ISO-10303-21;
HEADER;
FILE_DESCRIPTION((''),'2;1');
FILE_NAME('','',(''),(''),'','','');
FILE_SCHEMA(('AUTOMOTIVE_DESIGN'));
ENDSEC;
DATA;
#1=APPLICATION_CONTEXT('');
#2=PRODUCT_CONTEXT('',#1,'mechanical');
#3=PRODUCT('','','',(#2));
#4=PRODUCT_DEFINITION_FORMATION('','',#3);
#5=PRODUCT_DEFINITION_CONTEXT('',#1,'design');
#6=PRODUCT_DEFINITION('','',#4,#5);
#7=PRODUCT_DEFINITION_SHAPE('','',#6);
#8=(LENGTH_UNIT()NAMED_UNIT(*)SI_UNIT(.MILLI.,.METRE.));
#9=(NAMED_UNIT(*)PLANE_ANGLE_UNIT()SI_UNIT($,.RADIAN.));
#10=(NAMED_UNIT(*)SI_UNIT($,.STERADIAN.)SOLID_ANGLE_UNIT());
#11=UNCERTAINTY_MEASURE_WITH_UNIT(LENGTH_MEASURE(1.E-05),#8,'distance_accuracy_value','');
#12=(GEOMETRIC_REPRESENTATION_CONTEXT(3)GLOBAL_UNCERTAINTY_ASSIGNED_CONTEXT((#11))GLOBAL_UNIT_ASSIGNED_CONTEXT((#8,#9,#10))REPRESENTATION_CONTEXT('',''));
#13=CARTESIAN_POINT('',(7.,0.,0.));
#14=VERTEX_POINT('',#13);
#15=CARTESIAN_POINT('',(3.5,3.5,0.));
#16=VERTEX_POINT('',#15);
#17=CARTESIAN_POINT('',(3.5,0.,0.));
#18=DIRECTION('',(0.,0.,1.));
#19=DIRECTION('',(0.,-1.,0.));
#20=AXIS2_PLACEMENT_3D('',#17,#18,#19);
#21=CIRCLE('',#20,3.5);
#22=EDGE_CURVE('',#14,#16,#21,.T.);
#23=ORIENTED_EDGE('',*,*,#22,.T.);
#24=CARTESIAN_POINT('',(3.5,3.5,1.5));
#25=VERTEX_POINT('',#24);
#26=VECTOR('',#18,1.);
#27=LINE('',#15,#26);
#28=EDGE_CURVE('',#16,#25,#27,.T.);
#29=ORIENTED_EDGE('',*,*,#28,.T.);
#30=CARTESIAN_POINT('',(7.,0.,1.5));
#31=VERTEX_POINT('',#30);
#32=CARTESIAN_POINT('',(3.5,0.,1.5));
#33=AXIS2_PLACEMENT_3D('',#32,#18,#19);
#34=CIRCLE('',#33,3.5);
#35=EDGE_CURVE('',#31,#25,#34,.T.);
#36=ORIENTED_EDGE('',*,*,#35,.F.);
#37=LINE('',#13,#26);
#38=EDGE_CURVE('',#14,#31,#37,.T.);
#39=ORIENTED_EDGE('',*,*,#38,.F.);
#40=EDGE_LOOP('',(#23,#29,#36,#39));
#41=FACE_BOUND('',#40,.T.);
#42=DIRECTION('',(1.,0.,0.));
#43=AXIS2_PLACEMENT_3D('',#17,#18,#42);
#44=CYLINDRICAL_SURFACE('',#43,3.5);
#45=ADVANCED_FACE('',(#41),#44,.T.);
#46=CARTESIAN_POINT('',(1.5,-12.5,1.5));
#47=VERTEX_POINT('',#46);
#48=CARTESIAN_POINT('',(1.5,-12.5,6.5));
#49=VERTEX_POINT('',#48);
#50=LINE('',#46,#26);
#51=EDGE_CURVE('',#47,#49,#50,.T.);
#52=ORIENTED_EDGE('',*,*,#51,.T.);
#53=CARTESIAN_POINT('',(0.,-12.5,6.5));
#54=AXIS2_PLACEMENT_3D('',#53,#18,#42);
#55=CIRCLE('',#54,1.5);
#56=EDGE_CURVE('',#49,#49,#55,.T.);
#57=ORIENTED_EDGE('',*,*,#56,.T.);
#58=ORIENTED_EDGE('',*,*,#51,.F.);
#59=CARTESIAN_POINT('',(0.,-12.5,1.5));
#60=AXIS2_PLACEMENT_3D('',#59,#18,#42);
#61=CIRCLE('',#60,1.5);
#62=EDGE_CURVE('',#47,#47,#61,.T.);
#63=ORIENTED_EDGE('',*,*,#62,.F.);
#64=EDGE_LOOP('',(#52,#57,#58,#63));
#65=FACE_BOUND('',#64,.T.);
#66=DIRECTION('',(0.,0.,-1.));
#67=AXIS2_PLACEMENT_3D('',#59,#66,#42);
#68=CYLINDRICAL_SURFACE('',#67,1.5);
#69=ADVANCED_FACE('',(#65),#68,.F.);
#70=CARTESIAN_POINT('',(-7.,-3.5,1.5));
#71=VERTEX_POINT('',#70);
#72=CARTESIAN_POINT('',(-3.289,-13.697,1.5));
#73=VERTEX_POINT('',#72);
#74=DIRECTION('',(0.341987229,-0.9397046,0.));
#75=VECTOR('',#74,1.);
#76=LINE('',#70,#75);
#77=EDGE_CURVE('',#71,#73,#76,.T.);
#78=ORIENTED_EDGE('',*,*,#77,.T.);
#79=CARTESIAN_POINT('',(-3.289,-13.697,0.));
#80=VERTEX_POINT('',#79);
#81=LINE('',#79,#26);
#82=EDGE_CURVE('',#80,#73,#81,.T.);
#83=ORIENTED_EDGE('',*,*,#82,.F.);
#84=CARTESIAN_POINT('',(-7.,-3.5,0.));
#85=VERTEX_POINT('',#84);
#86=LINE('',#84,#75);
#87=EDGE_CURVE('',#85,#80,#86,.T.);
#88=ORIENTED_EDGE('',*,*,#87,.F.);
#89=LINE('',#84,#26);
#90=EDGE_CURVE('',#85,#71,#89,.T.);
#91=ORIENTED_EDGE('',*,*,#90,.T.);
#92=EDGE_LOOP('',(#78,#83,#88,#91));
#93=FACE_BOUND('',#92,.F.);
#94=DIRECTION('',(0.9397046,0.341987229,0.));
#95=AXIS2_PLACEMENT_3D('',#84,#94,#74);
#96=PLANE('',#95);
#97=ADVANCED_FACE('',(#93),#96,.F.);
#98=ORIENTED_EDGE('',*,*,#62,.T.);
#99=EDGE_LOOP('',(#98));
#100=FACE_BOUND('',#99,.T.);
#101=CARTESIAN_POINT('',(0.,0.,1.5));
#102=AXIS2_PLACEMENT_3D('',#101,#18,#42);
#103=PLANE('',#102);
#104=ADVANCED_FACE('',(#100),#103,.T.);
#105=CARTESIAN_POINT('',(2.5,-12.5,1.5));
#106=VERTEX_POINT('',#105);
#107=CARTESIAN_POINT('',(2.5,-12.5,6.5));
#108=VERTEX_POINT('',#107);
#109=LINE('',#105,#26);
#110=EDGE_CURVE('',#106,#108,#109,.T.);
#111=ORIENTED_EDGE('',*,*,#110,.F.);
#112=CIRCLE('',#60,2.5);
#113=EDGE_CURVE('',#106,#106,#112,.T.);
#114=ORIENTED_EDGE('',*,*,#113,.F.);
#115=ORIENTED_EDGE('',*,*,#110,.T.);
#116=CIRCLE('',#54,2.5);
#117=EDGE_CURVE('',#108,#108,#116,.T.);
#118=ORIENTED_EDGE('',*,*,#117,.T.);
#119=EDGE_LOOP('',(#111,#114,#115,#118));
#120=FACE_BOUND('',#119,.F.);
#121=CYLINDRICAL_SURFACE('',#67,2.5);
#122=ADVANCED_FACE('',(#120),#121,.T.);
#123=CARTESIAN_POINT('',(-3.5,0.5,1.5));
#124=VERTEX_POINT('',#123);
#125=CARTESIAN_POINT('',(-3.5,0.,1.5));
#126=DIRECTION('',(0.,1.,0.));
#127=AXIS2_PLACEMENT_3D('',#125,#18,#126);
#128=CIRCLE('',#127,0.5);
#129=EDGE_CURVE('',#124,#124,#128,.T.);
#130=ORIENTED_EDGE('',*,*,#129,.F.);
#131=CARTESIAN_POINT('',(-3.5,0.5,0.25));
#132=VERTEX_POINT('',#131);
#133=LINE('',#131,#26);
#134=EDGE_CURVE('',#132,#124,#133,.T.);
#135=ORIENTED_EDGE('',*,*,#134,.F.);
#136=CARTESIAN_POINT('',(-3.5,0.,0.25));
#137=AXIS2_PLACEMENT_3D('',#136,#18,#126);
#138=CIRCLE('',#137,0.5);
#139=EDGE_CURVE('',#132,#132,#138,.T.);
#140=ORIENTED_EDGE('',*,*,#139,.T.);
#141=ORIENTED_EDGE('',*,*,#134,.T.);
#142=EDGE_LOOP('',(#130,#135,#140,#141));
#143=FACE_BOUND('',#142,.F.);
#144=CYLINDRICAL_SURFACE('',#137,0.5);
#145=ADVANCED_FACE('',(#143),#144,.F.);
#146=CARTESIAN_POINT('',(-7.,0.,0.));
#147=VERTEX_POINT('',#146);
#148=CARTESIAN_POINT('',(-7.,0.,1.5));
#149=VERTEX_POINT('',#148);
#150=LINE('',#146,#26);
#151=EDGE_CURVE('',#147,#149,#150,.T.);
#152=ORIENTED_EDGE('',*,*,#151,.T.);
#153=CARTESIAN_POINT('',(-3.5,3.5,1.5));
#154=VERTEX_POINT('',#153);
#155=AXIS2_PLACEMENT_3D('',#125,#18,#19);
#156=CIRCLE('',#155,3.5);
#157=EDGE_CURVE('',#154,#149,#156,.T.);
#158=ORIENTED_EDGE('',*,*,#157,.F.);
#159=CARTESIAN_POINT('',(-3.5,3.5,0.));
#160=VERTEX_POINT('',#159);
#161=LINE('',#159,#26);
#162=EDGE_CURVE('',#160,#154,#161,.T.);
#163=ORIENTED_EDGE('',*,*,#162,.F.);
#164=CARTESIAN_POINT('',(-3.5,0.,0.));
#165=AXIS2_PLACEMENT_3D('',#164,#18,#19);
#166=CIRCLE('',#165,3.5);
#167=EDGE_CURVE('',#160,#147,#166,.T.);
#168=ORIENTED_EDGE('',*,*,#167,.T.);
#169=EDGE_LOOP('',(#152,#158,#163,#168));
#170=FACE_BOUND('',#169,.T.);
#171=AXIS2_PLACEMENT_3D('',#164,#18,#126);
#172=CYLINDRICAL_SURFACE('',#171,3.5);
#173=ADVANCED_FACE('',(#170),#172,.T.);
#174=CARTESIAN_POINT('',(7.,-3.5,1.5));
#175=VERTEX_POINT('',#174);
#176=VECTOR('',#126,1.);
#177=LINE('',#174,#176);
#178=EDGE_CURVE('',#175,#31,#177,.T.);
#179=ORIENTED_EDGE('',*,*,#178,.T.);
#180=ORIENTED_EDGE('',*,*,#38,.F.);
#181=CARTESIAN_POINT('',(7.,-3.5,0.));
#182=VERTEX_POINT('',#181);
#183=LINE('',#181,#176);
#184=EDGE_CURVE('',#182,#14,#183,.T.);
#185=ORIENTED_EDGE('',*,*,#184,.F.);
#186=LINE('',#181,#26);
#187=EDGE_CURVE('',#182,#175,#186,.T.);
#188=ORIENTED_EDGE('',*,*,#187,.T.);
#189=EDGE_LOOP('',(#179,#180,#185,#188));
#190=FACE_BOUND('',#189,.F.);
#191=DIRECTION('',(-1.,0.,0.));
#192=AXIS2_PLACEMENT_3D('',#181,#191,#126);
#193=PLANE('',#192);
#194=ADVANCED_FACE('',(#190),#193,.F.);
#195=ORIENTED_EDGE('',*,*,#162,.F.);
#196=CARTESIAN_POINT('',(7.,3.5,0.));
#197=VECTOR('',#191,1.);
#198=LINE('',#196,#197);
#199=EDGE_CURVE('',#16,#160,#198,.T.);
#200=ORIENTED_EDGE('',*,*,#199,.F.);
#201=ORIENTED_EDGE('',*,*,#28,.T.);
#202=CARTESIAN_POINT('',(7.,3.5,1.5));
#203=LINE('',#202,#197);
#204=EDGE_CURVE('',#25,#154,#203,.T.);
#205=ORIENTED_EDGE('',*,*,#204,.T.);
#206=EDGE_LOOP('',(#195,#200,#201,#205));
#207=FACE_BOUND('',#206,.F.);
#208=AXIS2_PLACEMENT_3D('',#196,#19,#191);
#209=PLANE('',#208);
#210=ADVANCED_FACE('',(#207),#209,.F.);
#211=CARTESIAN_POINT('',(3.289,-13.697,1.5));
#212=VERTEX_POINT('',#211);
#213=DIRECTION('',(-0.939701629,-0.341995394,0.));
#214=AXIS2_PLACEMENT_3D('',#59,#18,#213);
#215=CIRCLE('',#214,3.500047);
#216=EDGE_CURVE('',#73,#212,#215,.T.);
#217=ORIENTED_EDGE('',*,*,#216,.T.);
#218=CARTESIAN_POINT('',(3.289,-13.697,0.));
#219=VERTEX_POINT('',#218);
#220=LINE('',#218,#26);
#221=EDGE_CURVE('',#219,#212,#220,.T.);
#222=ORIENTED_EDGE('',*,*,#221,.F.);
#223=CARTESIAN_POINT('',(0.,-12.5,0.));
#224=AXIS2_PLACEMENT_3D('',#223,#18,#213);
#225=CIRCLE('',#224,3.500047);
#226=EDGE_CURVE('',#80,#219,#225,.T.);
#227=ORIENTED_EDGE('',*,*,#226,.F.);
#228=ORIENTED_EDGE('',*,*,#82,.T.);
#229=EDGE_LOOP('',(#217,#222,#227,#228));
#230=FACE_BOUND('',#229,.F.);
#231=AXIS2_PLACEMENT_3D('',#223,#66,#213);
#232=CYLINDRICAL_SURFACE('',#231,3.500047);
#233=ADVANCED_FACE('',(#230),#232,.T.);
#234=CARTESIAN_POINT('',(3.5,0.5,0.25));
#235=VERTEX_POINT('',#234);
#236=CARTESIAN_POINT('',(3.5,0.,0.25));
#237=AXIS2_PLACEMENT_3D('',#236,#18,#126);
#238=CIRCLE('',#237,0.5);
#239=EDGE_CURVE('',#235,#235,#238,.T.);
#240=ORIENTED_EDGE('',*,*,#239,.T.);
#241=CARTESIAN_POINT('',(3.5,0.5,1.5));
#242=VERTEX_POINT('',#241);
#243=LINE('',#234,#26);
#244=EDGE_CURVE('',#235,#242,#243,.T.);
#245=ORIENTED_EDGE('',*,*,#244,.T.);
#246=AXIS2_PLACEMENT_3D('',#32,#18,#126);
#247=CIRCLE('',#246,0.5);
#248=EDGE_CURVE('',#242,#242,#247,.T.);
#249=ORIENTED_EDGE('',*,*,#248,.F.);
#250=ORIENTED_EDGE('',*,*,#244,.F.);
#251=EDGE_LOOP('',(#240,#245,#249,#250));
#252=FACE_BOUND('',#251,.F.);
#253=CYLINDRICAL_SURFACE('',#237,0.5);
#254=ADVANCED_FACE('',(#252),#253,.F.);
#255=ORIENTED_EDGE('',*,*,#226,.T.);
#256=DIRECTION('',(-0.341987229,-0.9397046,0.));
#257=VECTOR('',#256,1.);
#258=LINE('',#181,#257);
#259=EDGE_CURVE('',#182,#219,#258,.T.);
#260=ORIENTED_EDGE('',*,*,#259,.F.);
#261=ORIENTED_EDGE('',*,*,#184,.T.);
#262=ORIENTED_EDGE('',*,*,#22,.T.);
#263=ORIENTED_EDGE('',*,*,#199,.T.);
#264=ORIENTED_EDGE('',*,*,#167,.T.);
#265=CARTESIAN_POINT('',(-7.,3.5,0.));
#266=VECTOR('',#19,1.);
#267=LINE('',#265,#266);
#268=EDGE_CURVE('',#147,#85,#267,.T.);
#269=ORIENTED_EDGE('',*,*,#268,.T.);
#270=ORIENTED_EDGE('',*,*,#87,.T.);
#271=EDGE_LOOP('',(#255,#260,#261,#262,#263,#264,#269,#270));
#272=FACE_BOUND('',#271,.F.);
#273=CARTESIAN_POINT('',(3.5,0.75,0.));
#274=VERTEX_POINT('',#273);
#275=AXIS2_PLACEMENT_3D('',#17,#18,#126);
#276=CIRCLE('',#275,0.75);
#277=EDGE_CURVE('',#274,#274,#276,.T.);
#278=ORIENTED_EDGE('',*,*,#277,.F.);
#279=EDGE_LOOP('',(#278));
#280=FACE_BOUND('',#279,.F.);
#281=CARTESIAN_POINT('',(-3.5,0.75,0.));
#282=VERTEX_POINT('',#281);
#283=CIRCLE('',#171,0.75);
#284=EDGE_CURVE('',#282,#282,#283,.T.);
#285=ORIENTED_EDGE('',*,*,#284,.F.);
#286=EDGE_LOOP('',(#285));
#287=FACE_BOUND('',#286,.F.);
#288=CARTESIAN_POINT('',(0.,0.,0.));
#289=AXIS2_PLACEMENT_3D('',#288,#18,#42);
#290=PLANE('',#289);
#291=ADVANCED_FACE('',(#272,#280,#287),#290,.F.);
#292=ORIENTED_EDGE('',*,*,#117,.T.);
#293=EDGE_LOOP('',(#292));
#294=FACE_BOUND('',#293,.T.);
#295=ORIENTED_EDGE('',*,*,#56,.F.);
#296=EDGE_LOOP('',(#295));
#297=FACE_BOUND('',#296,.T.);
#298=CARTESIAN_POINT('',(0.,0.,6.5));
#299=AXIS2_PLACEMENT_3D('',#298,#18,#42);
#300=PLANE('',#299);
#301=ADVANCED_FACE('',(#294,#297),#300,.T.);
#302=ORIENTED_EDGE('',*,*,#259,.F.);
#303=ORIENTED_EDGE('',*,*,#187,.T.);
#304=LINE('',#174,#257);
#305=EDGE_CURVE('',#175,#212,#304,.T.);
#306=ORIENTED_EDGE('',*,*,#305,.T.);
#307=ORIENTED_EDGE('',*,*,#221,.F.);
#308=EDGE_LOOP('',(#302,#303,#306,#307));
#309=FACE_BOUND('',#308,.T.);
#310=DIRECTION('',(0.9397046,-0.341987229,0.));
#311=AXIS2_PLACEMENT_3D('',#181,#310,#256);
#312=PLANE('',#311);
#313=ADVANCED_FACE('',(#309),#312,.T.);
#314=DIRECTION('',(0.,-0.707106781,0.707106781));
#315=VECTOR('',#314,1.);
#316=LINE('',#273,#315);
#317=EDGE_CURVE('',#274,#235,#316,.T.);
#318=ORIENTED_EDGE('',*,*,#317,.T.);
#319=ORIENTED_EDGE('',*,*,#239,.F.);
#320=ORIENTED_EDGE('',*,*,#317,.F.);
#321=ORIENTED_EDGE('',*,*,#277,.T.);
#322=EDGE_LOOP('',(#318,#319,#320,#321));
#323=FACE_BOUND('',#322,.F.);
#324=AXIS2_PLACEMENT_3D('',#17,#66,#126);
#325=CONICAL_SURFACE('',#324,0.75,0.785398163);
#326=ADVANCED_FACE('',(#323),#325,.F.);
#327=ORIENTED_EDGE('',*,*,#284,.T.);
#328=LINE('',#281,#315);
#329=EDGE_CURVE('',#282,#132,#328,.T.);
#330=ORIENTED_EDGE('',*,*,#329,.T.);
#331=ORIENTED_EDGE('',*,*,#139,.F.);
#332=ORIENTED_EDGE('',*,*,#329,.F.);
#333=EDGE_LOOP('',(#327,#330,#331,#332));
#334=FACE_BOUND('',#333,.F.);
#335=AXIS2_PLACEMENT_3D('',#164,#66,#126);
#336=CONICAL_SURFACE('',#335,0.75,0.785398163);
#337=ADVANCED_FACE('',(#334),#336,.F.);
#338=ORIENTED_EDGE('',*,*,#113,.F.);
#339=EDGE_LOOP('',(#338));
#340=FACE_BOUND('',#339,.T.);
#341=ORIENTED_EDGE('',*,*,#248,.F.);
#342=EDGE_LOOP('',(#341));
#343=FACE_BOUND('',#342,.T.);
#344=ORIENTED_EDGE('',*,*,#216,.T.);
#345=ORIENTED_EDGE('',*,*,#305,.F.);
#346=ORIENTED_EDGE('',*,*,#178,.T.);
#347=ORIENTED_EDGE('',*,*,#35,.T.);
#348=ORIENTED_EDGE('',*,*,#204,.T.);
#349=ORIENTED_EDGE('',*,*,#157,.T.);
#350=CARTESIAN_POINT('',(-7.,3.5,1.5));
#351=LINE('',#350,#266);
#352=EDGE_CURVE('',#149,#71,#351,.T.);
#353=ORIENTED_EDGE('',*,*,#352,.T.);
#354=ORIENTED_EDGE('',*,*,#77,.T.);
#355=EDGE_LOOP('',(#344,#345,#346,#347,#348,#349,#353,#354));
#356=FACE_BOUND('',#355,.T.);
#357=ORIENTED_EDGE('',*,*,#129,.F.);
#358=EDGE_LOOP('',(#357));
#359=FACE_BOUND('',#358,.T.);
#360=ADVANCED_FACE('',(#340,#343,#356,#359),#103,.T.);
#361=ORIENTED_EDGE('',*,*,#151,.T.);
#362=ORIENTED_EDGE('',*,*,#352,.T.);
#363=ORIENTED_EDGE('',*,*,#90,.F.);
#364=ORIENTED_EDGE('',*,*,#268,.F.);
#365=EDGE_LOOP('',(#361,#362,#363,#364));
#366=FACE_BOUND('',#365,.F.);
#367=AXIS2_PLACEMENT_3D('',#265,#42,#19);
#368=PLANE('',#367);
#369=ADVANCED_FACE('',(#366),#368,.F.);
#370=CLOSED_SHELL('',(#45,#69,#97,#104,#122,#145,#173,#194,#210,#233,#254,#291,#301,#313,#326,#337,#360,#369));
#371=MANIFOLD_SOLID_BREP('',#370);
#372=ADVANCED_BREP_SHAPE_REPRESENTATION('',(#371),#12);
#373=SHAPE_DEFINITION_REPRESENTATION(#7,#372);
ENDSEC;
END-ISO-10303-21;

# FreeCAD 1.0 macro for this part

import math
import FreeCAD as App
import Part
import Sketcher


def edges_at(feature, points):
    """Names of the edges that pass closest to the given points."""
    edges = feature.Shape.Edges
    near = lambda p: min(range(len(edges)), key=lambda i: edges[i].distToShape(Part.Vertex(*p))[0])
    return sorted({f"Edge{near(p) + 1}" for p in points})

doc = App.newDocument("Part")
params = doc.addObject("Spreadsheet::Sheet", "Params")
for row, (alias, value) in enumerate([
    ("sketch1_radius", "3.5 mm"),
    ("sketch1_width", "14 mm"),
    ("sketch1_height", "7 mm"),
    ("pad1_length", "1.5 mm"),
    ("sketch2_diameter", "5 mm"),
    ("sketch2_diameter2", "3 mm"),
    ("pad2_length", "5 mm"),
    ("fillet_radius", "3.5 mm"),
    ("sketch3_diameter", "1 mm"),
    ("hole_diameter", "1 mm"),
    ("hole_csink_diameter", "1.5 mm"),
], start=1):
    params.set(f"A{row}", alias)
    params.set(f"B{row}", "=" + value)
    params.setAlias(f"B{row}", alias)

body = doc.addObject("PartDesign::Body", "Body")

sketch1 = doc.addObject("Sketcher::SketchObject", "Sketch")
body.addObject(sketch1)
sketch1.AttachmentSupport = (doc.XY_Plane, [""])
sketch1.MapMode = "FlatFace"
sketch1.addGeometry([
    Part.LineSegment(App.Vector(3.3, -13.7, 0), App.Vector(7, -3.5, 0)),
    Part.LineSegment(App.Vector(7, -3.5, 0), App.Vector(7, 3.5, 0)),
    Part.LineSegment(App.Vector(7, 3.5, 0), App.Vector(-7, 3.5, 0)),
    Part.LineSegment(App.Vector(-7, 3.5, 0), App.Vector(-7, -3.5, 0)),
    Part.LineSegment(App.Vector(-7, -3.5, 0), App.Vector(-3.3, -13.7, 0)),
    Part.ArcOfCircle(Part.Circle(App.Vector(0, -12.5, 0), App.Vector(0, 0, 1), 3.5), math.radians(-160), math.radians(-20)),
], False)
sketch1.addConstraint([
    Sketcher.Constraint("Coincident", 0, 2, 1, 1),
    Sketcher.Constraint("Coincident", 1, 2, 2, 1),
    Sketcher.Constraint("Coincident", 2, 2, 3, 1),
    Sketcher.Constraint("Coincident", 3, 2, 4, 1),
    Sketcher.Constraint("Tangent", 4, 2, 5, 1),
    Sketcher.Constraint("Tangent", 5, 2, 0, 1),
    Sketcher.Constraint("Vertical", 1),
    Sketcher.Constraint("Horizontal", 2),
    Sketcher.Constraint("Vertical", 3),
    Sketcher.Constraint("Symmetric", 0, 2, 2, 2, -1, 1),
    Sketcher.Constraint("Symmetric", 4, 2, 5, 2, -2),
    Sketcher.Constraint("Radius", 5, 3.5),
    Sketcher.Constraint("DistanceX", 2, 2, 2, 1, 14.0),
    Sketcher.Constraint("DistanceY", 1, 1, 1, 2, 7.0),
    Sketcher.Constraint("DistanceY", 5, 3, 0, 2, 9.0),
])
sketch1.setExpression("Constraints[11]", "Params.sketch1_radius")
sketch1.setExpression("Constraints[12]", "Params.sketch1_width")
sketch1.setExpression("Constraints[13]", "Params.sketch1_height")
pad1 = doc.addObject("PartDesign::Pad", "Pad")
body.addObject(pad1)
pad1.Profile = sketch1
pad1.setExpression("Length", "Params.pad1_length")

sketch2 = doc.addObject("Sketcher::SketchObject", "Sketch001")
body.addObject(sketch2)
sketch2.AttachmentSupport = (doc.XY_Plane, [""])
sketch2.MapMode = "FlatFace"
sketch2.AttachmentOffset = App.Placement(App.Vector(0, 0, 1.5), App.Rotation())
sketch2.addGeometry([
    Part.Circle(App.Vector(0, -12.5, 0), App.Vector(0, 0, 1), 2.5),
    Part.Circle(App.Vector(0, -12.5, 0), App.Vector(0, 0, 1), 1.5),
], False)
sketch2.addConstraint([
    Sketcher.Constraint("Coincident", 1, 3, 0, 3),
    Sketcher.Constraint("PointOnObject", 0, 3, -2),
    Sketcher.Constraint("Diameter", 0, 5.0),
    Sketcher.Constraint("Diameter", 1, 3.0),
    Sketcher.Constraint("DistanceY", 0, 3, -1, 1, 12.5),
])
sketch2.setExpression("Constraints[2]", "Params.sketch2_diameter")
sketch2.setExpression("Constraints[3]", "Params.sketch2_diameter2")
pad2 = doc.addObject("PartDesign::Pad", "Pad001")
body.addObject(pad2)
pad2.Profile = sketch2
pad2.setExpression("Length", "Params.pad2_length")
doc.recompute()

fillet = doc.addObject("PartDesign::Fillet", "Fillet")
body.addObject(fillet)
fillet.Base = (pad2, edges_at(pad2, [(7, 3.5, 0.75), (-7, 3.5, 0.75)]))
fillet.setExpression("Radius", "Params.fillet_radius")

sketch3 = doc.addObject("Sketcher::SketchObject", "Sketch002")
body.addObject(sketch3)
sketch3.AttachmentSupport = (doc.XY_Plane, [""])
sketch3.MapMode = "FlatFace"
sketch3.addGeometry([
    Part.Circle(App.Vector(-3.5, 0, 0), App.Vector(0, 0, 1), 0.5),
    Part.Circle(App.Vector(3.5, 0, 0), App.Vector(0, 0, 1), 0.5),
], False)
sketch3.addConstraint([
    Sketcher.Constraint("Equal", 0, 1),
    Sketcher.Constraint("Symmetric", 0, 3, 1, 3, -1, 1),
    Sketcher.Constraint("PointOnObject", 0, 3, -1),
    Sketcher.Constraint("Diameter", 0, 1.0),
    Sketcher.Constraint("DistanceX", 0, 3, 1, 3, 7.0),
])
sketch3.setExpression("Constraints[3]", "Params.sketch3_diameter")
doc.recompute()
hole = doc.addObject("PartDesign::Hole", "Hole")
body.addObject(hole)
hole.Profile = sketch3
hole.ThreadType = "None"
hole.setExpression("Diameter", "Params.hole_diameter")
hole.DepthType = "ThroughAll"
hole.HoleCutType = "Countersink"
hole.setExpression("HoleCutDiameter", "Params.hole_csink_diameter")
hole.HoleCutCountersinkAngle = 90
hole.Reversed = True

doc.recompute()
